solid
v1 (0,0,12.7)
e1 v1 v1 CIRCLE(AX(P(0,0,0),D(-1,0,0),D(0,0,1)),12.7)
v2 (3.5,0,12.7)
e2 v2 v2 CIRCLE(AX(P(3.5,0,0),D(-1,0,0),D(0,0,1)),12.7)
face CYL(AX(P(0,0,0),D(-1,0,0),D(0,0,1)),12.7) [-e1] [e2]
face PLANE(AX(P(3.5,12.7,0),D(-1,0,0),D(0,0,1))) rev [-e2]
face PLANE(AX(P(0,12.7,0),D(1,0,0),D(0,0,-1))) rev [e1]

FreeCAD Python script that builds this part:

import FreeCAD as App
import Part
import Sketcher

doc = App.newDocument("Part")
body = doc.addObject("PartDesign::Body", "Body")

# Sketch on XY plane
sketch1 = body.newObject("Sketcher::SketchObject", "Sketch")
sketch1.AttachmentSupport = (doc.getObject("XY_Plane"), [""])
sketch1.MapMode = "FlatFace"
sketch1.addGeometry(Part.LineSegment(App.Vector(0, 12.7, 0), App.Vector(0, 0, 0)), False)
sketch1.addGeometry(Part.LineSegment(App.Vector(0, 0, 0), App.Vector(3.5, 0, 0)), False)
sketch1.addGeometry(Part.LineSegment(App.Vector(3.5, 0, 0), App.Vector(3.5, 12.7, 0)), False)
sketch1.addGeometry(Part.LineSegment(App.Vector(3.5, 12.7, 0), App.Vector(0, 12.7, 0)), False)
sketch1.addConstraint(Sketcher.Constraint("Coincident", 0, 2, 1, 1))
sketch1.addConstraint(Sketcher.Constraint("Coincident", 1, 2, 2, 1))
sketch1.addConstraint(Sketcher.Constraint("Coincident", 2, 2, 3, 1))
sketch1.addConstraint(Sketcher.Constraint("Coincident", 3, 2, 0, 1))
sketch1.addConstraint(Sketcher.Constraint("Vertical", 0))
sketch1.addConstraint(Sketcher.Constraint("Horizontal", 1))
sketch1.addConstraint(Sketcher.Constraint("Vertical", 2))
sketch1.addConstraint(Sketcher.Constraint("Horizontal", 3))
sketch1.addConstraint(Sketcher.Constraint("Coincident", 0, 2, -1, 1))
sketch1.addConstraint(Sketcher.Constraint("DistanceX", 1, 1, 1, 2, 3.5))
sketch1.addConstraint(Sketcher.Constraint("DistanceY", 0, 2, 0, 1, 12.7))
revolution = body.newObject("PartDesign::Revolution", "Revolution")
revolution.Profile = sketch1
revolution.ReferenceAxis = (sketch1, ["H_Axis"])
revolution.Angle = 360

doc.recompute()
